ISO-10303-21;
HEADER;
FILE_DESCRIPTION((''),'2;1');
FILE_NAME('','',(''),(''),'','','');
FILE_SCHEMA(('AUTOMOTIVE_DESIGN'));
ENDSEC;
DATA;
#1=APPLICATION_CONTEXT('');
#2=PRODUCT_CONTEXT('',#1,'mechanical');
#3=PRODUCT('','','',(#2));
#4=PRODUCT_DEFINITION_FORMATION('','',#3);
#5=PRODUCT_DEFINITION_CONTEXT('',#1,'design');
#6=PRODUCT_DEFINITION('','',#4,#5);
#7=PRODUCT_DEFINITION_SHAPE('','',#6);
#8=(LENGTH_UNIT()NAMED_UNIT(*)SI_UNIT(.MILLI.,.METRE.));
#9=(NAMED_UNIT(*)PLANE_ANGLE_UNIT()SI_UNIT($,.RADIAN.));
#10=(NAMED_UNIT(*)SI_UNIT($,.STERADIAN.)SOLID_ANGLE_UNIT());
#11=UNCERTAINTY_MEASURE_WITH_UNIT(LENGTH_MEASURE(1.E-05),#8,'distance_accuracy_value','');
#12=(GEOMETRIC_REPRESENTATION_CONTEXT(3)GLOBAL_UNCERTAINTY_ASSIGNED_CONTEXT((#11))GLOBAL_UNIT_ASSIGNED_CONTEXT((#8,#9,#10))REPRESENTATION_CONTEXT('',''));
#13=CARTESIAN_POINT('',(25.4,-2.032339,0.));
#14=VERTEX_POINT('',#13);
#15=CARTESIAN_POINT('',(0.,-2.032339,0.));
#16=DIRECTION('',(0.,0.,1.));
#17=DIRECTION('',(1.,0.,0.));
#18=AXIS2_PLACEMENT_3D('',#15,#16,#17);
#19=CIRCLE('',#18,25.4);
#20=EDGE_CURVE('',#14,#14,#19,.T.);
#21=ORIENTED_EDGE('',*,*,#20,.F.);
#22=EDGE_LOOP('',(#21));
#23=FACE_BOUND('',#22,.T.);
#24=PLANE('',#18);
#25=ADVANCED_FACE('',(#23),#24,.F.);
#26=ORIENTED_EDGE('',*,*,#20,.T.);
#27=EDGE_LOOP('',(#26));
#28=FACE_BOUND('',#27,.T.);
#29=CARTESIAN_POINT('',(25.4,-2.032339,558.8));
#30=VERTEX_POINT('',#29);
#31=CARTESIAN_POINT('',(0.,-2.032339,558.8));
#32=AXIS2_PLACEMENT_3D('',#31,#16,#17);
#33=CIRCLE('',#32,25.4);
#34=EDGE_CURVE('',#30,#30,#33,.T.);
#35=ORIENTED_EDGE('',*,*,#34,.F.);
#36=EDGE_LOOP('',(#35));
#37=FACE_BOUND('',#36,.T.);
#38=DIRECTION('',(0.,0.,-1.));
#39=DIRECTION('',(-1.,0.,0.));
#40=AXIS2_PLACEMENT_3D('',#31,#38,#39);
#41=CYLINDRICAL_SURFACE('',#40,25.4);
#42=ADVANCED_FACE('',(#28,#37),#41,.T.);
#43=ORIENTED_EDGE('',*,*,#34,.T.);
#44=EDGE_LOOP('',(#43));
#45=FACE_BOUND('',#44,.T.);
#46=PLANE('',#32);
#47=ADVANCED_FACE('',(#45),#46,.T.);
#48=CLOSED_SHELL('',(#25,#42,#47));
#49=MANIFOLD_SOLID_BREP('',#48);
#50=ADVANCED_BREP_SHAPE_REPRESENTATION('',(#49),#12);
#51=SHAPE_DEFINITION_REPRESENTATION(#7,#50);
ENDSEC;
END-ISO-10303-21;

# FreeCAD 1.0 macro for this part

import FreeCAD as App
import Part
import Sketcher
from FreeCAD import Vector
Q = App.Units.Quantity

doc = App.newDocument("Part")
params = doc.addObject("Spreadsheet::Sheet", "Params")
for row, (alias, value) in enumerate([
    ("sketch1_diameter", "2 in"),
    ("pad1_length", "22 in"),
], start=1):
    params.set(f"A{row}", alias)
    params.set(f"B{row}", "=" + value)
    params.setAlias(f"B{row}", alias)

body = doc.addObject("PartDesign::Body", "Body")

# Sketch on XY plane
sketch1 = doc.addObject("Sketcher::SketchObject", "Sketch")
body.addObject(sketch1)
sketch1.AttachmentSupport = (doc.XY_Plane, [""])
sketch1.MapMode = "FlatFace"
sketch1.addGeometry(Part.Circle(Vector(0, -2.032339, 0), Vector(0, 0, 1), 25.4), False)
sketch1.addConstraint(Sketcher.Constraint("PointOnObject", 0, 3, -2))
sketch1.addConstraint(Sketcher.Constraint("Diameter", 0, Q("2 in")))
sketch1.addConstraint(Sketcher.Constraint("DistanceY", 0, 3, -1, 1, Q("2.032339 mm")))
sketch1.setExpression("Constraints[1]", "Params.sketch1_diameter")
pad1 = doc.addObject("PartDesign::Pad", "Pad")
body.addObject(pad1)
pad1.Profile = sketch1
pad1.setExpression("Length", "Params.pad1_length")

doc.recompute()
